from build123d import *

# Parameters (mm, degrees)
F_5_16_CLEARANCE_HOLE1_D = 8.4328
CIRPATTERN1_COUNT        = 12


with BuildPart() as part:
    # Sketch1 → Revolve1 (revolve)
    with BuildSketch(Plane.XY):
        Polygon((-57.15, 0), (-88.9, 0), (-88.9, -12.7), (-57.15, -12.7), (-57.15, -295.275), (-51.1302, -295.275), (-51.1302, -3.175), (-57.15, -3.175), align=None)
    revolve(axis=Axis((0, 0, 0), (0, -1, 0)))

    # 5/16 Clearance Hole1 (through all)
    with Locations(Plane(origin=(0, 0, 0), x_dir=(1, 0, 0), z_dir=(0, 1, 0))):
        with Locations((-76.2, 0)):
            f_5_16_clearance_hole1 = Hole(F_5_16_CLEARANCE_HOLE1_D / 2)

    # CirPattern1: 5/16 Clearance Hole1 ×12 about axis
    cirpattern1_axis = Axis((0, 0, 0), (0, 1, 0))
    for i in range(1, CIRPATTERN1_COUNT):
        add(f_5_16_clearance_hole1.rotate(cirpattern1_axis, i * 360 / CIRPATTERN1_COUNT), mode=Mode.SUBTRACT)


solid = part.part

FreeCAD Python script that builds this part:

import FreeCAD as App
import Part
import Sketcher
from FreeCAD import Vector
Q = App.Units.Quantity

doc = App.newDocument("Part")
body = doc.addObject("PartDesign::Body", "Body")

sketch1 = body.newObject("Sketcher::SketchObject", "Sketch")
sketch1.AttachmentSupport = (doc.getObject("XY_Plane"), [""])
sketch1.MapMode = "FlatFace"
sketch1.addGeometry(Part.LineSegment(Vector(-57.1, 0, 0), Vector(-88.9, 0, 0)), False)
sketch1.addGeometry(Part.LineSegment(Vector(-88.9, 0, 0), Vector(-88.9, -12.7, 0)), False)
sketch1.addGeometry(Part.LineSegment(Vector(-88.9, -12.7, 0), Vector(-57.1, -12.7, 0)), False)
sketch1.addGeometry(Part.LineSegment(Vector(-57.1, -12.7, 0), Vector(-57.1, -295.3, 0)), False)
sketch1.addGeometry(Part.LineSegment(Vector(-57.1, -295.3, 0), Vector(-51.1, -295.3, 0)), False)
sketch1.addGeometry(Part.LineSegment(Vector(-51.1, -295.3, 0), Vector(-51.1, -3.2, 0)), False)
sketch1.addGeometry(Part.LineSegment(Vector(-51.1, -3.2, 0), Vector(-57.1, -3.2, 0)), False)
sketch1.addGeometry(Part.LineSegment(Vector(-57.1, -3.2, 0), Vector(-57.1, 0, 0)), False)
sketch1.addConstraint(Sketcher.Constraint("Coincident", 0, 2, 1, 1))
sketch1.addConstraint(Sketcher.Constraint("Coincident", 1, 2, 2, 1))
sketch1.addConstraint(Sketcher.Constraint("Coincident", 2, 2, 3, 1))
sketch1.addConstraint(Sketcher.Constraint("Coincident", 3, 2, 4, 1))
sketch1.addConstraint(Sketcher.Constraint("Coincident", 4, 2, 5, 1))
sketch1.addConstraint(Sketcher.Constraint("Coincident", 5, 2, 6, 1))
sketch1.addConstraint(Sketcher.Constraint("Coincident", 6, 2, 7, 1))
sketch1.addConstraint(Sketcher.Constraint("Coincident", 7, 2, 0, 1))
sketch1.addConstraint(Sketcher.Constraint("Horizontal", 0))
sketch1.addConstraint(Sketcher.Constraint("Vertical", 1))
sketch1.addConstraint(Sketcher.Constraint("Horizontal", 2))
sketch1.addConstraint(Sketcher.Constraint("Vertical", 3))
sketch1.addConstraint(Sketcher.Constraint("Horizontal", 4))
sketch1.addConstraint(Sketcher.Constraint("Vertical", 5))
sketch1.addConstraint(Sketcher.Constraint("Horizontal", 6))
sketch1.addConstraint(Sketcher.Constraint("Vertical", 7))
sketch1.addConstraint(Sketcher.Constraint("PointOnObject", 0, 2, -1))
sketch1.addConstraint(Sketcher.Constraint("Vertical", 3, 2, 6, 2))
sketch1.addConstraint(Sketcher.Constraint("DistanceY", 1, 2, 1, 1, Q("0.5 in")))
sketch1.addConstraint(Sketcher.Constraint("DistanceY", 5, 1, 5, 2, Q("11.5 in")))
sketch1.addConstraint(Sketcher.Constraint("DistanceX", 0, 2, 0, 1, Q("1.25 in")))
sketch1.addConstraint(Sketcher.Constraint("DistanceX", 0, 2, -1, 1, Q("3.5 in")))
sketch1.addConstraint(Sketcher.Constraint("DistanceX", 4, 1, 4, 2, Q("0.237 in")))
sketch1.addConstraint(Sketcher.Constraint("DistanceY", 3, 2, 3, 1, Q("11.125 in")))
revolution = body.newObject("PartDesign::Revolution", "Revolution")
revolution.Profile = sketch1
revolution.ReferenceAxis = (sketch1, ["V_Axis"])
revolution.Angle = 360

sketch2 = body.newObject("Sketcher::SketchObject", "Sketch001")
sketch2.AttachmentSupport = (doc.getObject("XZ_Plane"), [""])
sketch2.MapMode = "FlatFace"
sketch2.addGeometry(Part.Circle(Vector(-76.2, 0, 0), Vector(0, 0, 1), 4.2), False)
sketch2.addConstraint(Sketcher.Constraint("PointOnObject", 0, 3, -1))
sketch2.addConstraint(Sketcher.Constraint("Diameter", 0, Q("0.332 in")))
sketch2.addConstraint(Sketcher.Constraint("DistanceX", 0, 3, -1, 1, Q("3 in")))
doc.recompute()
hole = body.newObject("PartDesign::Hole", "Hole")
hole.Profile = sketch2
hole.ThreadType = "None"
hole.Diameter = Q("0.332 in")
hole.DepthType = "ThroughAll"
hole.Reversed = True
doc.recompute()

polarpattern = body.newObject("PartDesign::PolarPattern", "PolarPattern")
polarpattern.Originals = [hole]
polarpattern.Axis = (doc.getObject("Y_Axis"), [""])
polarpattern.Angle = 360
polarpattern.Occurrences = 12
body.Tip = polarpattern

doc.recompute()
